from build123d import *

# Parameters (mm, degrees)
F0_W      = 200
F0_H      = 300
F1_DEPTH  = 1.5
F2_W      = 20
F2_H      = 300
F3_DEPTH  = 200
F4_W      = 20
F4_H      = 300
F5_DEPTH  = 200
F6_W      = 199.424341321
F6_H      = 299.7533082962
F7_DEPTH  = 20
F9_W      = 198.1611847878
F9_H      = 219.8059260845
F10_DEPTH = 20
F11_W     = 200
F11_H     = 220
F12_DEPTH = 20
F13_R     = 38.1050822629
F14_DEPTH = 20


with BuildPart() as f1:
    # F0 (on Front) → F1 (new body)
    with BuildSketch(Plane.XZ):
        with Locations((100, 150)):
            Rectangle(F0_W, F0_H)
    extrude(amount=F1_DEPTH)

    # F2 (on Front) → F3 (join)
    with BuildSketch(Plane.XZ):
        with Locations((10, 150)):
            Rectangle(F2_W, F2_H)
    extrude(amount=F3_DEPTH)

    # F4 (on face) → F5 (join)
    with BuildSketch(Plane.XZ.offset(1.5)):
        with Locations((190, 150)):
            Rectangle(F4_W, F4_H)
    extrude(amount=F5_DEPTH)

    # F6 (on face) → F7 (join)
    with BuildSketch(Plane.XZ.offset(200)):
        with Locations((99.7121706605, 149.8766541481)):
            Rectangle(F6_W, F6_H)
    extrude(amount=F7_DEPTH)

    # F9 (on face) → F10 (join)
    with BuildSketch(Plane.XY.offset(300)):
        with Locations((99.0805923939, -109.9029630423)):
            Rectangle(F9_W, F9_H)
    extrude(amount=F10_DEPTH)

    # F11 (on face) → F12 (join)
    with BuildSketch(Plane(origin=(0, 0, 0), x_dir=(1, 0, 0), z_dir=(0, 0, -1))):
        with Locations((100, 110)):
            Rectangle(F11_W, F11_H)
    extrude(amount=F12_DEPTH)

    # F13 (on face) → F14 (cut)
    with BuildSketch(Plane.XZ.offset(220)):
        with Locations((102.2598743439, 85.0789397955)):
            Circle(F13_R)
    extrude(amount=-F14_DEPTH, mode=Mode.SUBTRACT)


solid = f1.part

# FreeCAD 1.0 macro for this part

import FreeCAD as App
import Part
import Sketcher
Q = App.Units.Quantity


def add_polygon(sketch, points):
    """Adds a closed chain of lines whose ends are joined by coincident constraints."""
    first, n = sketch.GeometryCount, len(points)
    for a, b in zip(points, points[1:] + points[:1]):
        sketch.addGeometry(Part.LineSegment(App.Vector(*a, 0), App.Vector(*b, 0)), False)
    for i in range(n):
        sketch.addConstraint(Sketcher.Constraint("Coincident", first + i, 2, first + (i + 1) % n, 1))

doc = App.newDocument("Part")
params = doc.addObject("Spreadsheet::Sheet", "Params")
for row, (alias, value) in enumerate([
    ("sketch1_width", "200 mm"),
    ("sketch1_height", "300 mm"),
    ("pad1_length", "1.5 mm"),
    ("sketch2_width", "20 mm"),
    ("sketch2_height", "300 mm"),
    ("pad2_length", "200 mm"),
    ("sketch3_width", "20 mm"),
    ("sketch3_height", "300 mm"),
    ("pad3_length", "200 mm"),
    ("pad4_length", "20 mm"),
    ("pad5_length", "20 mm"),
    ("sketch6_width", "200 mm"),
    ("sketch6_height", "220 mm"),
    ("pad6_length", "20 mm"),
    ("pocket1_length", "20 mm"),
], start=1):
    params.set(f"A{row}", alias)
    params.set(f"B{row}", "=" + value)
    params.setAlias(f"B{row}", alias)

body = doc.addObject("PartDesign::Body", "Body")

# Sketch on XZ plane
sketch1 = doc.addObject("Sketcher::SketchObject", "Sketch")
body.addObject(sketch1)
sketch1.AttachmentSupport = (doc.XZ_Plane, [""])
sketch1.MapMode = "FlatFace"
add_polygon(sketch1, [(0, 300), (0, 0), (200, 0), (200, 300)])  # lines 0-3
sketch1.addConstraint([
    Sketcher.Constraint("Vertical", 0),
    Sketcher.Constraint("Horizontal", 1),
    Sketcher.Constraint("Vertical", 2),
    Sketcher.Constraint("Horizontal", 3),
    Sketcher.Constraint("Coincident", 0, 2, -1, 1),
    Sketcher.Constraint("DistanceX", 1, 1, 1, 2, Q("200 mm")),
    Sketcher.Constraint("DistanceY", 0, 2, 0, 1, Q("300 mm")),
])
sketch1.setExpression("Constraints[9]", "Params.sketch1_width")
sketch1.setExpression("Constraints[10]", "Params.sketch1_height")
pad1 = doc.addObject("PartDesign::Pad", "Pad")
body.addObject(pad1)
pad1.Profile = sketch1
pad1.setExpression("Length", "Params.pad1_length")

# Sketch on XZ plane
sketch2 = doc.addObject("Sketcher::SketchObject", "Sketch001")
body.addObject(sketch2)
sketch2.AttachmentSupport = (doc.XZ_Plane, [""])
sketch2.MapMode = "FlatFace"
add_polygon(sketch2, [(0, 300), (0, 0), (20, 0), (20, 300)])  # lines 0-3
sketch2.addConstraint([
    Sketcher.Constraint("Vertical", 0),
    Sketcher.Constraint("Horizontal", 1),
    Sketcher.Constraint("Vertical", 2),
    Sketcher.Constraint("Horizontal", 3),
    Sketcher.Constraint("Coincident", 0, 2, -1, 1),
    Sketcher.Constraint("DistanceX", 1, 1, 1, 2, Q("20 mm")),
    Sketcher.Constraint("DistanceY", 0, 2, 0, 1, Q("300 mm")),
])
sketch2.setExpression("Constraints[9]", "Params.sketch2_width")
sketch2.setExpression("Constraints[10]", "Params.sketch2_height")
pad2 = doc.addObject("PartDesign::Pad", "Pad001")
body.addObject(pad2)
pad2.Profile = sketch2
pad2.setExpression("Length", "Params.pad2_length")

# Sketch on XZ plane
sketch3 = doc.addObject("Sketcher::SketchObject", "Sketch002")
body.addObject(sketch3)
sketch3.AttachmentSupport = (doc.XZ_Plane, [""])
sketch3.MapMode = "FlatFace"
sketch3.AttachmentOffset = App.Placement(App.Vector(0, 0, 1.5), App.Rotation())
add_polygon(sketch3, [(180, 300), (180, 0), (200, 0), (200, 300)])  # lines 0-3
sketch3.addConstraint([
    Sketcher.Constraint("Vertical", 0),
    Sketcher.Constraint("Horizontal", 1),
    Sketcher.Constraint("Vertical", 2),
    Sketcher.Constraint("Horizontal", 3),
    Sketcher.Constraint("PointOnObject", 0, 2, -1),
    Sketcher.Constraint("DistanceX", 1, 1, 1, 2, Q("20 mm")),
    Sketcher.Constraint("DistanceY", 0, 2, 0, 1, Q("300 mm")),
    Sketcher.Constraint("DistanceX", -1, 1, 0, 2, Q("180 mm")),
])
sketch3.setExpression("Constraints[9]", "Params.sketch3_width")
sketch3.setExpression("Constraints[10]", "Params.sketch3_height")
pad3 = doc.addObject("PartDesign::Pad", "Pad002")
body.addObject(pad3)
pad3.Profile = sketch3
pad3.setExpression("Length", "Params.pad3_length")

# Sketch on XZ plane
sketch4 = doc.addObject("Sketcher::SketchObject", "Sketch003")
body.addObject(sketch4)
sketch4.AttachmentSupport = (doc.XZ_Plane, [""])
sketch4.MapMode = "FlatFace"
sketch4.AttachmentOffset = App.Placement(App.Vector(0, 0, 200), App.Rotation())
add_polygon(sketch4, [(0, 299.753308), (0, 0), (199.424341, 0), (199.424341, 299.753308)])  # lines 0-3
sketch4.addConstraint([
    Sketcher.Constraint("Vertical", 0),
    Sketcher.Constraint("Horizontal", 1),
    Sketcher.Constraint("Vertical", 2),
    Sketcher.Constraint("Horizontal", 3),
    Sketcher.Constraint("Coincident", 0, 2, -1, 1),
    Sketcher.Constraint("DistanceX", 1, 1, 1, 2, Q("199.424341 mm")),
    Sketcher.Constraint("DistanceY", 0, 2, 0, 1, Q("299.753308 mm")),
])
pad4 = doc.addObject("PartDesign::Pad", "Pad003")
body.addObject(pad4)
pad4.Profile = sketch4
pad4.setExpression("Length", "Params.pad4_length")

# Sketch on XY plane
sketch5 = doc.addObject("Sketcher::SketchObject", "Sketch004")
body.addObject(sketch5)
sketch5.AttachmentSupport = (doc.XY_Plane, [""])
sketch5.MapMode = "FlatFace"
sketch5.AttachmentOffset = App.Placement(App.Vector(0, 0, 300), App.Rotation())
add_polygon(sketch5, [(0, 0), (0, -219.805926), (198.161185, -219.805926), (198.161185, 0)])  # lines 0-3
sketch5.addConstraint([
    Sketcher.Constraint("Vertical", 0),
    Sketcher.Constraint("Horizontal", 1),
    Sketcher.Constraint("Vertical", 2),
    Sketcher.Constraint("Horizontal", 3),
    Sketcher.Constraint("Coincident", 3, 2, -1, 1),
    Sketcher.Constraint("DistanceX", 1, 1, 1, 2, Q("198.161185 mm")),
    Sketcher.Constraint("DistanceY", 0, 2, 0, 1, Q("219.805926 mm")),
])
pad5 = doc.addObject("PartDesign::Pad", "Pad004")
body.addObject(pad5)
pad5.Profile = sketch5
pad5.setExpression("Length", "Params.pad5_length")

# Sketch on XY plane
sketch6 = doc.addObject("Sketcher::SketchObject", "Sketch005")
body.addObject(sketch6)
sketch6.AttachmentSupport = (doc.XY_Plane, [""])
sketch6.MapMode = "FlatFace"
add_polygon(sketch6, [(0, -220), (0, 0), (200, 0), (200, -220)])  # lines 0-3
sketch6.addConstraint([
    Sketcher.Constraint("Vertical", 0),
    Sketcher.Constraint("Horizontal", 1),
    Sketcher.Constraint("Vertical", 2),
    Sketcher.Constraint("Horizontal", 3),
    Sketcher.Constraint("Coincident", 0, 2, -1, 1),
    Sketcher.Constraint("DistanceX", 1, 1, 1, 2, Q("200 mm")),
    Sketcher.Constraint("DistanceY", 0, 1, 0, 2, Q("220 mm")),
])
sketch6.setExpression("Constraints[9]", "Params.sketch6_width")
sketch6.setExpression("Constraints[10]", "Params.sketch6_height")
pad6 = doc.addObject("PartDesign::Pad", "Pad005")
body.addObject(pad6)
pad6.Profile = sketch6
pad6.setExpression("Length", "Params.pad6_length")
pad6.Reversed = True

# Sketch on XZ plane
sketch7 = doc.addObject("Sketcher::SketchObject", "Sketch006")
body.addObject(sketch7)
sketch7.AttachmentSupport = (doc.XZ_Plane, [""])
sketch7.MapMode = "FlatFace"
sketch7.AttachmentOffset = App.Placement(App.Vector(0, 0, 220), App.Rotation())
sketch7.addGeometry(Part.Circle(App.Vector(102.259874, 85.07894, 0), App.Vector(0, 0, 1), 38.105082), False)
sketch7.addConstraint([
    Sketcher.Constraint("Diameter", 0, Q("76.210165 mm")),
    Sketcher.Constraint("DistanceY", -1, 1, 0, 3, Q("85.07894 mm")),
    Sketcher.Constraint("DistanceX", -1, 1, 0, 3, Q("102.259874 mm")),
])
pocket1 = doc.addObject("PartDesign::Pocket", "Pocket")
body.addObject(pocket1)
pocket1.Profile = sketch7
pocket1.setExpression("Length", "Params.pocket1_length")

doc.recompute()
